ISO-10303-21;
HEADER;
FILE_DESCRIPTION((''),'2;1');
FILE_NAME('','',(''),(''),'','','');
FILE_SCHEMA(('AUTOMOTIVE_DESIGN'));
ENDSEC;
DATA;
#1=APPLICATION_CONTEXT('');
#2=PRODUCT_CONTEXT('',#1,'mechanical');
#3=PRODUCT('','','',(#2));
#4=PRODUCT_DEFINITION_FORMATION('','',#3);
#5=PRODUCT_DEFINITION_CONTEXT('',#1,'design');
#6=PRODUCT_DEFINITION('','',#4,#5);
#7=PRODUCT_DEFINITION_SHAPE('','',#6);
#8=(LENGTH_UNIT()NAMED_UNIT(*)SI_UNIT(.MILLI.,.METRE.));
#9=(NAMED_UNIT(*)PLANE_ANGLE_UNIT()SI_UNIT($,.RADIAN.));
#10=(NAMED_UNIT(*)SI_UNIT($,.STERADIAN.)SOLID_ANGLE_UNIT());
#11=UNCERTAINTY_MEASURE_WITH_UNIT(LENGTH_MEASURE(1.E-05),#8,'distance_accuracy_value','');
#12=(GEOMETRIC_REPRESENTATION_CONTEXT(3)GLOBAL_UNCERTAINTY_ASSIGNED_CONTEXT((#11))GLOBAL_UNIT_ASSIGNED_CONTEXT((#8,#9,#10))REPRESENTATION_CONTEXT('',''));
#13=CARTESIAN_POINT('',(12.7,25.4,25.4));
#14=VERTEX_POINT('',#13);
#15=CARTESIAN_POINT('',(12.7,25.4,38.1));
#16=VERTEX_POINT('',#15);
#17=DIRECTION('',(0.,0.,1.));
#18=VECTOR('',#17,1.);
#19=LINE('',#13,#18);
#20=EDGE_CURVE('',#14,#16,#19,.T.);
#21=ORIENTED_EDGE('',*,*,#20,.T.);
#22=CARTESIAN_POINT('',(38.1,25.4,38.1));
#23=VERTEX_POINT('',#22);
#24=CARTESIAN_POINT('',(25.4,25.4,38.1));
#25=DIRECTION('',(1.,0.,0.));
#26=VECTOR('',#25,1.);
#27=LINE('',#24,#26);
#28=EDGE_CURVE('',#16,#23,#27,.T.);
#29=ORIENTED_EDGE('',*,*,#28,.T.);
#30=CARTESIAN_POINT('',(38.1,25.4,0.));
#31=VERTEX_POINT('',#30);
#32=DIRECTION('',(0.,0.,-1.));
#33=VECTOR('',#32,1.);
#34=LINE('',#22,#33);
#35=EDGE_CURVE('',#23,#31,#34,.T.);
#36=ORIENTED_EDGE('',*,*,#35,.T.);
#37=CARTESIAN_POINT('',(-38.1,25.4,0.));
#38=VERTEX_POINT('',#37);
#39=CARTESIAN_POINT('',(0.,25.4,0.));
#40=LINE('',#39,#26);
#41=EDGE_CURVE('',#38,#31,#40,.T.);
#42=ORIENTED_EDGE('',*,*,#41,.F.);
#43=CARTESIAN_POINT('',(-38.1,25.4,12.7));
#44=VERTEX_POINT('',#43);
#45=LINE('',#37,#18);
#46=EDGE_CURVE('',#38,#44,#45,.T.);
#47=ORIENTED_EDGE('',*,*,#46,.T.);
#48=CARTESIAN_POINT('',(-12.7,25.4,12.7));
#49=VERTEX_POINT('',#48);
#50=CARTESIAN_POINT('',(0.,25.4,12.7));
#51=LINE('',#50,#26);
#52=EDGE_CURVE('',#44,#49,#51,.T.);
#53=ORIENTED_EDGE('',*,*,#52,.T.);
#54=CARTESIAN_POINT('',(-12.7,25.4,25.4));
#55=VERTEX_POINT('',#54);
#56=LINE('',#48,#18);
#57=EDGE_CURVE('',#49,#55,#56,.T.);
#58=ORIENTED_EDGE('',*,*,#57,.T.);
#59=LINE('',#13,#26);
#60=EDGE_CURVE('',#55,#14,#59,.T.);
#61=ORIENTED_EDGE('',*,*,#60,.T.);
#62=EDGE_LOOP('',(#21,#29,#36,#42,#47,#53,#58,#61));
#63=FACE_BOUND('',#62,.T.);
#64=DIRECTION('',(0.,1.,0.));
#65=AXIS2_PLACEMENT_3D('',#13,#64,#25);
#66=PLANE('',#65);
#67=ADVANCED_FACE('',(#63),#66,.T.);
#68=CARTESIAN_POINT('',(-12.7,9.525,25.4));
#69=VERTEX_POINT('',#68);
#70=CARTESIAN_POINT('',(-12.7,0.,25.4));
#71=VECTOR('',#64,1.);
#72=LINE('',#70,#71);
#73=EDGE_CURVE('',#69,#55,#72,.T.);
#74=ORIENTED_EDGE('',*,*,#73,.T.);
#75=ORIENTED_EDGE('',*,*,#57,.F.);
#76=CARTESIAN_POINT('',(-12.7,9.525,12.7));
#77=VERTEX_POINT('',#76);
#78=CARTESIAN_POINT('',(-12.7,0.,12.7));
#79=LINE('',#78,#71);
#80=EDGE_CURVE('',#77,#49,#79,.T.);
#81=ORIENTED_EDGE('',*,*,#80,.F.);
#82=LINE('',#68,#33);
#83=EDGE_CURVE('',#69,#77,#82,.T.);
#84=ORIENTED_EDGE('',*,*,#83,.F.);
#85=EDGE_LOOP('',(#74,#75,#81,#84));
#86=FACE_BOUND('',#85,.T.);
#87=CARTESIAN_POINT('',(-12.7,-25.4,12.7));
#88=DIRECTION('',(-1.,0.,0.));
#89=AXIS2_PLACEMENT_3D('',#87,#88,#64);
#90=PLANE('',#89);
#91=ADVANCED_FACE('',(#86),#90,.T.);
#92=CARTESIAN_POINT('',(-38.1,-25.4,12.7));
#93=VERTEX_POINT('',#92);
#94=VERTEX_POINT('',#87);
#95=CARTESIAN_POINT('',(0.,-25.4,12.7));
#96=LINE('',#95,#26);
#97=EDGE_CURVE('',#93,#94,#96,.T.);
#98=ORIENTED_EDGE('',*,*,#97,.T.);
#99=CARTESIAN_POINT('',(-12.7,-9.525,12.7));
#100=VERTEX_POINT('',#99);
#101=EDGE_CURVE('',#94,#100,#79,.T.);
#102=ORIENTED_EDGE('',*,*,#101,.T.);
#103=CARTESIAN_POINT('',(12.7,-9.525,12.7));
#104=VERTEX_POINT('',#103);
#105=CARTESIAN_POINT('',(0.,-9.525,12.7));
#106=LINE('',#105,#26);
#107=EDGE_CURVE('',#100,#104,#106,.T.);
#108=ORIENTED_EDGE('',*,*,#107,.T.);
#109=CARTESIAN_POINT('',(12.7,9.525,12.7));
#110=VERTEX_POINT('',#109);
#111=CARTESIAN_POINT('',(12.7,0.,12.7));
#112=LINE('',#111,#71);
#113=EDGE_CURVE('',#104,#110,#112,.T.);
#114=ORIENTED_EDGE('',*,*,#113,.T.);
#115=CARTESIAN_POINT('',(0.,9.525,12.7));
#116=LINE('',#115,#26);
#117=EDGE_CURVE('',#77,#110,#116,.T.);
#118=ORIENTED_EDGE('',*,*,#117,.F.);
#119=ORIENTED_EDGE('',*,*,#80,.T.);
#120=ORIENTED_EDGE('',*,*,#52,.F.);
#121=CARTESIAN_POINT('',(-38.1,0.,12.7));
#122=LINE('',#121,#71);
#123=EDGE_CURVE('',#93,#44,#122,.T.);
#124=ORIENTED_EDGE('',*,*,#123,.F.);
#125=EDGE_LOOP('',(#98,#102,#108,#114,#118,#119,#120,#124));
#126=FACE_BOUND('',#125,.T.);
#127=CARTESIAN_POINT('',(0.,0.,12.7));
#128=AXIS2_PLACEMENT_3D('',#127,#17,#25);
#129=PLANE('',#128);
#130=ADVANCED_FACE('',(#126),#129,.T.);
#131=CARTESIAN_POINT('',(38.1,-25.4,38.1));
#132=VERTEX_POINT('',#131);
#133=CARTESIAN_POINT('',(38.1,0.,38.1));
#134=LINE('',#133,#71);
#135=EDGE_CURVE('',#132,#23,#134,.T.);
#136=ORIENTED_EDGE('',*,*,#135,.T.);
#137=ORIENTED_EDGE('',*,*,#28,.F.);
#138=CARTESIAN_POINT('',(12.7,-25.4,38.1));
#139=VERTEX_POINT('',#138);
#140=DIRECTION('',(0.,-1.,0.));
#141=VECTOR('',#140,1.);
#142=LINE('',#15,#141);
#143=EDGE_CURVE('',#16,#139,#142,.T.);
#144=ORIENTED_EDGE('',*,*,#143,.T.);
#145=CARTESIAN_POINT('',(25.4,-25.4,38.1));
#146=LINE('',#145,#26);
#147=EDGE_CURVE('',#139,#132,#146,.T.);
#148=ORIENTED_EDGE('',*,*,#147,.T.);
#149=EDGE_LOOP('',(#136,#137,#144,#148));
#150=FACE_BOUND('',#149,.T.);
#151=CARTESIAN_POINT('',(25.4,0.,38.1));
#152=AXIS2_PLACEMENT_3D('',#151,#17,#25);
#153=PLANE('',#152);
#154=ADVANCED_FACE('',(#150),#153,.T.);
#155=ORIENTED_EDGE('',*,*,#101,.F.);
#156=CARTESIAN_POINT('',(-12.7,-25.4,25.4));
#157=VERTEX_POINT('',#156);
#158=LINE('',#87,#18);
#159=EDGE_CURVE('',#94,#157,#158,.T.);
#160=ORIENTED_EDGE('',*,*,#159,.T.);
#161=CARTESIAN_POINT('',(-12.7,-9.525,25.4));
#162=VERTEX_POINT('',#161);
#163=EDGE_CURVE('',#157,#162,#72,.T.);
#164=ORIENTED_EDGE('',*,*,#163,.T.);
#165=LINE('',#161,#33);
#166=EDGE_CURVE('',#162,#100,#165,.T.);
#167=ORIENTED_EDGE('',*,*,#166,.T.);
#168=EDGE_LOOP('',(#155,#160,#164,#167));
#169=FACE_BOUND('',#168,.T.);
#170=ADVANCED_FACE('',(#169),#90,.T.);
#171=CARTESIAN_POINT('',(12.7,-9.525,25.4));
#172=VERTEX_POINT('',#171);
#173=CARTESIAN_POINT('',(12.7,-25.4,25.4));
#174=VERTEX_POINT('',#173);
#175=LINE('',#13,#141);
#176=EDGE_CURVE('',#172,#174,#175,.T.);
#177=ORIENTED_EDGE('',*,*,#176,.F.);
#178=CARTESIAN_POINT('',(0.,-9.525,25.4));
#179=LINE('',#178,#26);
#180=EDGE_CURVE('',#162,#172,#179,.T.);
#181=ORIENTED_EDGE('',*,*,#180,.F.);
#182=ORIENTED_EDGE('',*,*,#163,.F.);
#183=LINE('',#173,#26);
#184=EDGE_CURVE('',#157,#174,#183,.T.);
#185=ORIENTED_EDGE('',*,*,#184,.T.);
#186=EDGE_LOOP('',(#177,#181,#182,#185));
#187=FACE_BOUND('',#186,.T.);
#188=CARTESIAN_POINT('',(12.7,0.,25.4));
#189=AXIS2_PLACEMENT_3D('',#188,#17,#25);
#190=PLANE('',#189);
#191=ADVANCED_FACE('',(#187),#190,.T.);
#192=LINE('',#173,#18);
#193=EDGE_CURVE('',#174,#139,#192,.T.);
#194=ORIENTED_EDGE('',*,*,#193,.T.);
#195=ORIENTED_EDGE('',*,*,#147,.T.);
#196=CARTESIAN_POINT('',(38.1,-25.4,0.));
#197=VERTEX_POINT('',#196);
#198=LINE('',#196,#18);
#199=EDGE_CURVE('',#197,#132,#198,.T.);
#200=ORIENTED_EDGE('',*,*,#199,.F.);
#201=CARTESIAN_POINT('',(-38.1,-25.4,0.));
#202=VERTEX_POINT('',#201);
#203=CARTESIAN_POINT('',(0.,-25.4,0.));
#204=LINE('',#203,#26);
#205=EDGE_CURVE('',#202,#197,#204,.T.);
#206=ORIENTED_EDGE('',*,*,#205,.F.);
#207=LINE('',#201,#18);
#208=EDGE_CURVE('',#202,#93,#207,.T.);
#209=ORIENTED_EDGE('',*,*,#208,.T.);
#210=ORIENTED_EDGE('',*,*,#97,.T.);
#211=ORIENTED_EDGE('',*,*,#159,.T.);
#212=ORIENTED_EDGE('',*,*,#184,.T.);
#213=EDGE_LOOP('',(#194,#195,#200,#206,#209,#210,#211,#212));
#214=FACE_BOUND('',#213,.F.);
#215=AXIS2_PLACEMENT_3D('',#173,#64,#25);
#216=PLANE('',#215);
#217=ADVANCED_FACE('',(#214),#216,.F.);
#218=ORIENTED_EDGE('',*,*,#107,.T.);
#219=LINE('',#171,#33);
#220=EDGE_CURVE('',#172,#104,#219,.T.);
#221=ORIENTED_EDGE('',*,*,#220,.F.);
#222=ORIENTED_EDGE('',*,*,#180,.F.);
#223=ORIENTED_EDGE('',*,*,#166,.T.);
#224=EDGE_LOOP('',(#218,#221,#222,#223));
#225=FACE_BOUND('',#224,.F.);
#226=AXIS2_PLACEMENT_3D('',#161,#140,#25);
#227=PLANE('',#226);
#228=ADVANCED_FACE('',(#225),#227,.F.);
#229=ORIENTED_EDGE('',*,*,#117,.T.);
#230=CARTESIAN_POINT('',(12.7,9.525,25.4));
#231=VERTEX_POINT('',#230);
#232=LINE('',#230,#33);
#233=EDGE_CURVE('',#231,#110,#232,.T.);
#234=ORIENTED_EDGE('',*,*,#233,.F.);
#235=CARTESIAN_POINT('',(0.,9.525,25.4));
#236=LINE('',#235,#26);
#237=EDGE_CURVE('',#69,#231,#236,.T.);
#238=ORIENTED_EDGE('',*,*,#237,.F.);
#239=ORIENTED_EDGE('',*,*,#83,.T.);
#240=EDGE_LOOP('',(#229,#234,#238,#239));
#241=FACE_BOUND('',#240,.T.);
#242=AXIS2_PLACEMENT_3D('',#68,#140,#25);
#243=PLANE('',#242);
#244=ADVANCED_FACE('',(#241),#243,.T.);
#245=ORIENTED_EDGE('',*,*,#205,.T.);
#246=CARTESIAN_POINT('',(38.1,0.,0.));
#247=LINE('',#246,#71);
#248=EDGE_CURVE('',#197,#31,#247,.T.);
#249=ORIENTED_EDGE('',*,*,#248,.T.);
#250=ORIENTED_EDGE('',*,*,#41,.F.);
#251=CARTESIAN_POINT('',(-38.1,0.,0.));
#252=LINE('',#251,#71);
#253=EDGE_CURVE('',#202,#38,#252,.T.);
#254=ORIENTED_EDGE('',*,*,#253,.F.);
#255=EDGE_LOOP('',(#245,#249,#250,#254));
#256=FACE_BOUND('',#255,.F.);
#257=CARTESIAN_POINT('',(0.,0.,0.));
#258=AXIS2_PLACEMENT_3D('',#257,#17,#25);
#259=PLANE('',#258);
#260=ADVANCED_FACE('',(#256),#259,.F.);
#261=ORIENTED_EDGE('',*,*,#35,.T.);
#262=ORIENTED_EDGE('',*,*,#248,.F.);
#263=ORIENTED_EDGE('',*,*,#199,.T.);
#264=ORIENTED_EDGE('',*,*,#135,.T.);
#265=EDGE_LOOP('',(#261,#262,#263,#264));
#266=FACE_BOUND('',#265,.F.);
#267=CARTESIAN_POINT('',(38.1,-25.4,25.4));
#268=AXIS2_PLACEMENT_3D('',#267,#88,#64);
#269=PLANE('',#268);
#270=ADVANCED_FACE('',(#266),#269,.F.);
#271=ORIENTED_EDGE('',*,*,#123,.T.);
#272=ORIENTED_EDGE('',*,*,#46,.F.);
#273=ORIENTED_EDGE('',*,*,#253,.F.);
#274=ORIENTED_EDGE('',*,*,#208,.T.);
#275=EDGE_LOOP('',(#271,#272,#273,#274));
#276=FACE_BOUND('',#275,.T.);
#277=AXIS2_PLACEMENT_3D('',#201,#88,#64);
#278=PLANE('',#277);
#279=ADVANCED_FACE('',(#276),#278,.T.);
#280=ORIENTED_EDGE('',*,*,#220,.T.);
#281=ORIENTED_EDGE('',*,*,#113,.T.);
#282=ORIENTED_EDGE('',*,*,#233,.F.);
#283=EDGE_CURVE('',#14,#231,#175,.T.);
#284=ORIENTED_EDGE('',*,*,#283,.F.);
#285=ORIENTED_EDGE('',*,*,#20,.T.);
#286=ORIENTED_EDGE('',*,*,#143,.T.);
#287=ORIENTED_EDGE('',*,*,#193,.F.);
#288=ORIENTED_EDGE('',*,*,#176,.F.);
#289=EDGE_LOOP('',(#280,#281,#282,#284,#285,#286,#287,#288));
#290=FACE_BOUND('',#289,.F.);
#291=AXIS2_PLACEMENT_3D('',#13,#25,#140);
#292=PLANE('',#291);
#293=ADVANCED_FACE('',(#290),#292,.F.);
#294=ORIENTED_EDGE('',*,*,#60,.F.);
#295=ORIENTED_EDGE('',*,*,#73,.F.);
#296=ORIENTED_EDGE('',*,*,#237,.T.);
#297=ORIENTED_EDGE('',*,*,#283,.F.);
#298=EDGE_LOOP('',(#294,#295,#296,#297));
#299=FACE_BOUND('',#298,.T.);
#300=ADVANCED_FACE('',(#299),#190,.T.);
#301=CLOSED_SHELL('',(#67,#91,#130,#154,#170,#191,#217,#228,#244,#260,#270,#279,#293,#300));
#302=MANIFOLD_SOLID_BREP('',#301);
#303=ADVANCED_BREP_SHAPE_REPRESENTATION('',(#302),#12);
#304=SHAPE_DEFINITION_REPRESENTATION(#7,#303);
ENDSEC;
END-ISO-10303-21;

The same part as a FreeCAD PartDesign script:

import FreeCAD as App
import Part
import Sketcher
from FreeCAD import Vector
Q = App.Units.Quantity

doc = App.newDocument("Part")
body = doc.addObject("PartDesign::Body", "Body")

# Sketch on XY plane
sketch1 = body.newObject("Sketcher::SketchObject", "Sketch")
sketch1.AttachmentSupport = (doc.getObject("XY_Plane"), [""])
sketch1.MapMode = "FlatFace"
sketch1.addGeometry([
    Part.LineSegment(Vector(-38.1, 25.4, 0), Vector(-38.1, -25.4, 0)),
    Part.LineSegment(Vector(-38.1, -25.4, 0), Vector(38.1, -25.4, 0)),
    Part.LineSegment(Vector(38.1, -25.4, 0), Vector(38.1, 25.4, 0)),
    Part.LineSegment(Vector(38.1, 25.4, 0), Vector(-38.1, 25.4, 0)),
], False)
sketch1.addConstraint([
    Sketcher.Constraint("Coincident", 0, 2, 1, 1),
    Sketcher.Constraint("Coincident", 1, 2, 2, 1),
    Sketcher.Constraint("Coincident", 2, 2, 3, 1),
    Sketcher.Constraint("Coincident", 3, 2, 0, 1),
    Sketcher.Constraint("Vertical", 0),
    Sketcher.Constraint("Horizontal", 1),
    Sketcher.Constraint("Vertical", 2),
    Sketcher.Constraint("Horizontal", 3),
    Sketcher.Constraint("Symmetric", 0, 2, 2, 2, -1, 1),
    Sketcher.Constraint("DistanceX", 1, 1, 1, 2, Q("3 in")),
    Sketcher.Constraint("DistanceY", 0, 2, 0, 1, Q("2 in")),
])
pad1 = body.newObject("PartDesign::Pad", "Pad")
pad1.Profile = sketch1
pad1.Length = Q("0.5 in")

# Sketch on XY plane
sketch2 = body.newObject("Sketcher::SketchObject", "Sketch001")
sketch2.AttachmentSupport = (doc.getObject("XY_Plane"), [""])
sketch2.MapMode = "FlatFace"
sketch2.AttachmentOffset = App.Placement(Vector(0, 0, 0.5 * 25.4), App.Rotation())
sketch2.addGeometry([
    Part.LineSegment(Vector(-12.7, 25.4, 0), Vector(-12.7, -25.4, 0)),
    Part.LineSegment(Vector(-12.7, -25.4, 0), Vector(38.1, -25.4, 0)),
    Part.LineSegment(Vector(38.1, -25.4, 0), Vector(38.1, 25.4, 0)),
    Part.LineSegment(Vector(38.1, 25.4, 0), Vector(-12.7, 25.4, 0)),
], False)
sketch2.addConstraint([
    Sketcher.Constraint("Coincident", 0, 2, 1, 1),
    Sketcher.Constraint("Coincident", 1, 2, 2, 1),
    Sketcher.Constraint("Coincident", 2, 2, 3, 1),
    Sketcher.Constraint("Coincident", 3, 2, 0, 1),
    Sketcher.Constraint("Vertical", 0),
    Sketcher.Constraint("Horizontal", 1),
    Sketcher.Constraint("Vertical", 2),
    Sketcher.Constraint("Horizontal", 3),
    Sketcher.Constraint("Equal", 3, 0),
    Sketcher.Constraint("DistanceX", 1, 1, 1, 2, Q("2 in")),
    Sketcher.Constraint("DistanceY", 0, 2, -1, 1, Q("1 in")),
    Sketcher.Constraint("DistanceX", 0, 2, -1, 1, Q("0.5 in")),
])
pad2 = body.newObject("PartDesign::Pad", "Pad001")
pad2.Profile = sketch2
pad2.Length = Q("0.5 in")

# Sketch on XY plane
sketch3 = body.newObject("Sketcher::SketchObject", "Sketch002")
sketch3.AttachmentSupport = (doc.getObject("XY_Plane"), [""])
sketch3.MapMode = "FlatFace"
sketch3.AttachmentOffset = App.Placement(Vector(0, 0, 1 * 25.4), App.Rotation())
sketch3.addGeometry([
    Part.LineSegment(Vector(-12.7, 9.525, 0), Vector(-12.7, -9.525, 0)),
    Part.LineSegment(Vector(-12.7, -9.525, 0), Vector(12.7, -9.525, 0)),
    Part.LineSegment(Vector(12.7, -9.525, 0), Vector(12.7, 9.525, 0)),
    Part.LineSegment(Vector(12.7, 9.525, 0), Vector(-12.7, 9.525, 0)),
], False)
sketch3.addConstraint([
    Sketcher.Constraint("Coincident", 0, 2, 1, 1),
    Sketcher.Constraint("Coincident", 1, 2, 2, 1),
    Sketcher.Constraint("Coincident", 2, 2, 3, 1),
    Sketcher.Constraint("Coincident", 3, 2, 0, 1),
    Sketcher.Constraint("Vertical", 0),
    Sketcher.Constraint("Horizontal", 1),
    Sketcher.Constraint("Vertical", 2),
    Sketcher.Constraint("Horizontal", 3),
    Sketcher.Constraint("Symmetric", 0, 2, 2, 2, -1, 1),
    Sketcher.Constraint("DistanceX", 1, 1, 1, 2, Q("1 in")),
    Sketcher.Constraint("DistanceY", 0, 2, 0, 1, Q("0.75 in")),
])
pocket1 = body.newObject("PartDesign::Pocket", "Pocket")
pocket1.Profile = sketch3
pocket1.Length = Q("0.5 in")

# Sketch on XY plane
sketch4 = body.newObject("Sketcher::SketchObject", "Sketch003")
sketch4.AttachmentSupport = (doc.getObject("XY_Plane"), [""])
sketch4.MapMode = "FlatFace"
sketch4.AttachmentOffset = App.Placement(Vector(0, 0, 1 * 25.4), App.Rotation())
sketch4.addGeometry([
    Part.LineSegment(Vector(12.7, 25.4, 0), Vector(12.7, -25.4, 0)),
    Part.LineSegment(Vector(12.7, -25.4, 0), Vector(38.1, -25.4, 0)),
    Part.LineSegment(Vector(38.1, -25.4, 0), Vector(38.1, 25.4, 0)),
    Part.LineSegment(Vector(38.1, 25.4, 0), Vector(12.7, 25.4, 0)),
], False)
sketch4.addConstraint([
    Sketcher.Constraint("Coincident", 0, 2, 1, 1),
    Sketcher.Constraint("Coincident", 1, 2, 2, 1),
    Sketcher.Constraint("Coincident", 2, 2, 3, 1),
    Sketcher.Constraint("Coincident", 3, 2, 0, 1),
    Sketcher.Constraint("Vertical", 0),
    Sketcher.Constraint("Horizontal", 1),
    Sketcher.Constraint("Vertical", 2),
    Sketcher.Constraint("Horizontal", 3),
    Sketcher.Constraint("DistanceX", 1, 1, 1, 2, Q("1 in")),
    Sketcher.Constraint("DistanceY", 0, 2, 0, 1, Q("2 in")),
    Sketcher.Constraint("DistanceY", 0, 2, -1, 1, Q("1 in")),
    Sketcher.Constraint("DistanceX", -1, 1, 0, 2, Q("0.5 in")),
])
pad3 = body.newObject("PartDesign::Pad", "Pad002")
pad3.Profile = sketch4
pad3.Length = Q("0.5 in")

doc.recompute()
